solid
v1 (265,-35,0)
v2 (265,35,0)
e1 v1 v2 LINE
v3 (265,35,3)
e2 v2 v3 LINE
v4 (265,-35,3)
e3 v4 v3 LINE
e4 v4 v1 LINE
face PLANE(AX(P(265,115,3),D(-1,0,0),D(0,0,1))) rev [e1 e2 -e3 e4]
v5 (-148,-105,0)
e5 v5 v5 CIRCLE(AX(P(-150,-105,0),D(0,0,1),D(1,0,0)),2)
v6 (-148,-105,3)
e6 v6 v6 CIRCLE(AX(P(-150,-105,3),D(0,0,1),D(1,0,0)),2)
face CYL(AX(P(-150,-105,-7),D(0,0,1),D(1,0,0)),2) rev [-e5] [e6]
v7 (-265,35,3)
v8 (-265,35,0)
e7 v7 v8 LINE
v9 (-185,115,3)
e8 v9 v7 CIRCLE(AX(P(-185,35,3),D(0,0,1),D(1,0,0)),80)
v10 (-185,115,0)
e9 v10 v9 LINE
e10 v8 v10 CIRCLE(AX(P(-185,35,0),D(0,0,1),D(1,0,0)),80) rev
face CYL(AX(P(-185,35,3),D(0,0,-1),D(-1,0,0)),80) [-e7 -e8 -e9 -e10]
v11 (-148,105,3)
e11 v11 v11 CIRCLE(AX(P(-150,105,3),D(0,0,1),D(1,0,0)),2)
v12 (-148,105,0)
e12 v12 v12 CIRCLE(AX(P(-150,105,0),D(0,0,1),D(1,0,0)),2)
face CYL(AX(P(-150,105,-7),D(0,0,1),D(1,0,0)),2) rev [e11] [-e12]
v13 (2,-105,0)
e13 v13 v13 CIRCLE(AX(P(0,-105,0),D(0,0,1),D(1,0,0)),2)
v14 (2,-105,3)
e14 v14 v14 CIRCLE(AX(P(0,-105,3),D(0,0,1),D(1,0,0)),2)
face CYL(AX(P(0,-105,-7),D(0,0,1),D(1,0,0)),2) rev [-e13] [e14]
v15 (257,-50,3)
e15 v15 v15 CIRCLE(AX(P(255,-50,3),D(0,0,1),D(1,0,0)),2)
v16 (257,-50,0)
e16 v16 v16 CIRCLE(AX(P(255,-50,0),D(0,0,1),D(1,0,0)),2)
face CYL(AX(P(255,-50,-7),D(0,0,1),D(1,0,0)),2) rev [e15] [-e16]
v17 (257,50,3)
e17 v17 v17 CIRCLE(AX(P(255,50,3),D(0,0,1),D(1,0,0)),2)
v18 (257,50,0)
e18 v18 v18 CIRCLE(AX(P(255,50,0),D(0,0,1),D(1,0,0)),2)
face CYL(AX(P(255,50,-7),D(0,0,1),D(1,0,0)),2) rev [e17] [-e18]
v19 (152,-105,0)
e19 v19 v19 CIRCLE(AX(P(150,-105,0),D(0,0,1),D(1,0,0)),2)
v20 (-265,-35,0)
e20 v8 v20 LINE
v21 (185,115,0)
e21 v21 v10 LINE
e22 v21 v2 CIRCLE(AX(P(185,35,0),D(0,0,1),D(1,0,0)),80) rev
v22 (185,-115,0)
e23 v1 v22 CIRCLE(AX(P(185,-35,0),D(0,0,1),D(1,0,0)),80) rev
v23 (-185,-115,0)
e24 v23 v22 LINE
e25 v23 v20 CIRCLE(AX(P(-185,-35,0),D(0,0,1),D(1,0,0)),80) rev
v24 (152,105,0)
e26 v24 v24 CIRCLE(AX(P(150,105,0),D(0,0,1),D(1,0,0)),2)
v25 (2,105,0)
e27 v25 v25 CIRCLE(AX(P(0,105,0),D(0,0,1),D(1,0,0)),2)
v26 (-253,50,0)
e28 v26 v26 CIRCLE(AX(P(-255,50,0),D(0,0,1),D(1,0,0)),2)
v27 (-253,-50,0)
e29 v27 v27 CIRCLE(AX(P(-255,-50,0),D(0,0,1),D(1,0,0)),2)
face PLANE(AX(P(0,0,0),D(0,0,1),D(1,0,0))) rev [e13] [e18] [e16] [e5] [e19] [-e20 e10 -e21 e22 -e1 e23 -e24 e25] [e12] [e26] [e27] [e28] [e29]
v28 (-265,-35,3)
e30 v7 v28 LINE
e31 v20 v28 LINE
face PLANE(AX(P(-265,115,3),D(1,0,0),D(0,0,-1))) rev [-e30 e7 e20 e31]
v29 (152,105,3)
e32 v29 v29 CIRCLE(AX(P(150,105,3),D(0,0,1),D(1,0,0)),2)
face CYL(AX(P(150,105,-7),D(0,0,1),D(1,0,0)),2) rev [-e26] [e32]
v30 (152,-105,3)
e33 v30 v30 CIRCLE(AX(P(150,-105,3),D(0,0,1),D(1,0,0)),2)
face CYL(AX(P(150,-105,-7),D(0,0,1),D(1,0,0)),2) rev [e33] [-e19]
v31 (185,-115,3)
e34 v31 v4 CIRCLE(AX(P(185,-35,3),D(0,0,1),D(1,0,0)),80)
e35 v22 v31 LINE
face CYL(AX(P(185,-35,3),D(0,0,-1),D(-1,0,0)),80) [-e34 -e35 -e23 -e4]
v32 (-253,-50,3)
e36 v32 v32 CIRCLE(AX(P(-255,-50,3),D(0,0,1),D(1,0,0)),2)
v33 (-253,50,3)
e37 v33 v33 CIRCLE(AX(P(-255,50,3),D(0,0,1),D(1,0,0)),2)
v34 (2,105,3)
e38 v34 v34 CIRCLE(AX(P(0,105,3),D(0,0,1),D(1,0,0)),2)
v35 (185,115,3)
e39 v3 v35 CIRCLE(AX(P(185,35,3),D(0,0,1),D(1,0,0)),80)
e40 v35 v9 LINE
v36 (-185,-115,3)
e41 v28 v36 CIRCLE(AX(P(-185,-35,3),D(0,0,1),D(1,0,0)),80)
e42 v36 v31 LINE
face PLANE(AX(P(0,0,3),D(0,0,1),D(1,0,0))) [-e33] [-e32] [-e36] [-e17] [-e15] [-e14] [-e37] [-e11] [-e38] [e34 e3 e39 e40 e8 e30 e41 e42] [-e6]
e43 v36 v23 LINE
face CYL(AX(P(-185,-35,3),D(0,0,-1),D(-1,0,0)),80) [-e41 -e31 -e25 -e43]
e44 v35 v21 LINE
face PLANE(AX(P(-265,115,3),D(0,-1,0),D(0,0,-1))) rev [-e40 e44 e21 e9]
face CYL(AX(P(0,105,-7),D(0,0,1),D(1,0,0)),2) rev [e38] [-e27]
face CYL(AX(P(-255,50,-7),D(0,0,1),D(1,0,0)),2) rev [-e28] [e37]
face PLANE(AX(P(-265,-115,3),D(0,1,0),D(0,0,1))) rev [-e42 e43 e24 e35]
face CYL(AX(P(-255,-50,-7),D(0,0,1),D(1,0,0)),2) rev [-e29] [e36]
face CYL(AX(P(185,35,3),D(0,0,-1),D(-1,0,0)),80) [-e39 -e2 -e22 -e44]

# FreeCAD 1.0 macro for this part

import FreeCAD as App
import Part
import Sketcher
from FreeCAD import Vector


def edges_at(feature, points):
    """Names of the edges that pass closest to the given points."""
    edges = feature.Shape.Edges
    near = lambda p: min(range(len(edges)), key=lambda i: edges[i].distToShape(Part.Vertex(*p))[0])
    return sorted({f"Edge{near(p) + 1}" for p in points})

doc = App.newDocument("Part")
params = doc.addObject("Spreadsheet::Sheet", "Params")
for row, (alias, value) in enumerate([
    ("sketch1_width", "530 mm"),
    ("sketch1_height", "230 mm"),
    ("pad1_length", "3 mm"),
    ("fillet_radius", "80 mm"),
    ("sketch2_diameter", "4 mm"),
    ("pocket1_length", "10 mm"),
], start=1):
    params.set(f"A{row}", alias)
    params.set(f"B{row}", "=" + value)
    params.setAlias(f"B{row}", alias)

body = doc.addObject("PartDesign::Body", "Body")

# Sketch on XY plane
sketch1 = doc.addObject("Sketcher::SketchObject", "Sketch")
body.addObject(sketch1)
sketch1.AttachmentSupport = (doc.XY_Plane, [""])
sketch1.MapMode = "FlatFace"
sketch1.addGeometry(Part.LineSegment(Vector(-265, 115, 0), Vector(-265, -115, 0)), False)
sketch1.addGeometry(Part.LineSegment(Vector(-265, -115, 0), Vector(265, -115, 0)), False)
sketch1.addGeometry(Part.LineSegment(Vector(265, -115, 0), Vector(265, 115, 0)), False)
sketch1.addGeometry(Part.LineSegment(Vector(265, 115, 0), Vector(-265, 115, 0)), False)
sketch1.addConstraint(Sketcher.Constraint("Coincident", 0, 2, 1, 1))
sketch1.addConstraint(Sketcher.Constraint("Coincident", 1, 2, 2, 1))
sketch1.addConstraint(Sketcher.Constraint("Coincident", 2, 2, 3, 1))
sketch1.addConstraint(Sketcher.Constraint("Coincident", 3, 2, 0, 1))
sketch1.addConstraint(Sketcher.Constraint("Vertical", 0))
sketch1.addConstraint(Sketcher.Constraint("Horizontal", 1))
sketch1.addConstraint(Sketcher.Constraint("Vertical", 2))
sketch1.addConstraint(Sketcher.Constraint("Horizontal", 3))
sketch1.addConstraint(Sketcher.Constraint("Symmetric", 0, 2, 2, 2, -1, 1))
sketch1.addConstraint(Sketcher.Constraint("DistanceX", 1, 1, 1, 2, 530.0))
sketch1.addConstraint(Sketcher.Constraint("DistanceY", 0, 2, 0, 1, 230.0))
sketch1.setExpression("Constraints[9]", "Params.sketch1_width")
sketch1.setExpression("Constraints[10]", "Params.sketch1_height")
pad1 = doc.addObject("PartDesign::Pad", "Pad")
body.addObject(pad1)
pad1.Profile = sketch1
pad1.setExpression("Length", "Params.pad1_length")
doc.recompute()

fillet = doc.addObject("PartDesign::Fillet", "Fillet")
body.addObject(fillet)
fillet.Base = (pad1, edges_at(pad1, [
    (265, -115, 1.5),
    (-265, -115, 1.5),
    (-265, 115, 1.5),
    (265, 115, 1.5),
]))
fillet.setExpression("Radius", "Params.fillet_radius")

# Sketch on XY plane
sketch2 = doc.addObject("Sketcher::SketchObject", "Sketch001")
body.addObject(sketch2)
sketch2.AttachmentSupport = (doc.XY_Plane, [""])
sketch2.MapMode = "FlatFace"
sketch2.AttachmentOffset = App.Placement(Vector(0, 0, 3), App.Rotation())
sketch2.addGeometry(Part.Circle(Vector(-255, -50, 0), Vector(0, 0, 1), 2), False)
sketch2.addGeometry(Part.Circle(Vector(-255, 50, 0), Vector(0, 0, 1), 2), False)
sketch2.addGeometry(Part.Circle(Vector(-150, -105, 0), Vector(0, 0, 1), 2), False)
sketch2.addGeometry(Part.Circle(Vector(0, -105, 0), Vector(0, 0, 1), 2), False)
sketch2.addGeometry(Part.Circle(Vector(150, -105, 0), Vector(0, 0, 1), 2), False)
sketch2.addGeometry(Part.Circle(Vector(255, -50, 0), Vector(0, 0, 1), 2), False)
sketch2.addGeometry(Part.Circle(Vector(255, 50, 0), Vector(0, 0, 1), 2), False)
sketch2.addGeometry(Part.Circle(Vector(150, 105, 0), Vector(0, 0, 1), 2), False)
sketch2.addGeometry(Part.Circle(Vector(0, 105, 0), Vector(0, 0, 1), 2), False)
sketch2.addGeometry(Part.Circle(Vector(-150, 105, 0), Vector(0, 0, 1), 2), False)
sketch2.addConstraint(Sketcher.Constraint("Equal", 0, 1))
sketch2.addConstraint(Sketcher.Constraint("Equal", 1, 2))
sketch2.addConstraint(Sketcher.Constraint("Equal", 2, 3))
sketch2.addConstraint(Sketcher.Constraint("Equal", 3, 4))
sketch2.addConstraint(Sketcher.Constraint("Equal", 4, 5))
sketch2.addConstraint(Sketcher.Constraint("Equal", 5, 6))
sketch2.addConstraint(Sketcher.Constraint("Equal", 6, 7))
sketch2.addConstraint(Sketcher.Constraint("Equal", 7, 8))
sketch2.addConstraint(Sketcher.Constraint("Equal", 8, 9))
sketch2.addConstraint(Sketcher.Constraint("Symmetric", 1, 3, 5, 3, -1, 1))
sketch2.addConstraint(Sketcher.Constraint("Symmetric", 0, 3, 6, 3, -1, 1))
sketch2.addConstraint(Sketcher.Constraint("Symmetric", 2, 3, 7, 3, -1, 1))
sketch2.addConstraint(Sketcher.Constraint("Symmetric", 3, 3, 8, 3, -1, 1))
sketch2.addConstraint(Sketcher.Constraint("Symmetric", 4, 3, 9, 3, -1, 1))
sketch2.addConstraint(Sketcher.Constraint("Symmetric", 2, 3, 4, 3, -2))
sketch2.addConstraint(Sketcher.Constraint("Symmetric", 0, 3, 5, 3, -2))
sketch2.addConstraint(Sketcher.Constraint("PointOnObject", 3, 3, -2))
sketch2.addConstraint(Sketcher.Constraint("Horizontal", 2, 3, 3, 3))
sketch2.addConstraint(Sketcher.Constraint("Diameter", 0, 4.0))
sketch2.addConstraint(Sketcher.Constraint("DistanceX", 0, 3, -1, 1, 255.0))
sketch2.addConstraint(Sketcher.Constraint("DistanceY", 0, 3, -1, 1, 50.0))
sketch2.addConstraint(Sketcher.Constraint("DistanceX", 2, 3, -1, 1, 150.0))
sketch2.addConstraint(Sketcher.Constraint("DistanceY", 2, 3, -1, 1, 105.0))
sketch2.setExpression("Constraints[18]", "Params.sketch2_diameter")
pocket1 = doc.addObject("PartDesign::Pocket", "Pocket")
body.addObject(pocket1)
pocket1.Profile = sketch2
pocket1.setExpression("Length", "Params.pocket1_length")

doc.recompute()
